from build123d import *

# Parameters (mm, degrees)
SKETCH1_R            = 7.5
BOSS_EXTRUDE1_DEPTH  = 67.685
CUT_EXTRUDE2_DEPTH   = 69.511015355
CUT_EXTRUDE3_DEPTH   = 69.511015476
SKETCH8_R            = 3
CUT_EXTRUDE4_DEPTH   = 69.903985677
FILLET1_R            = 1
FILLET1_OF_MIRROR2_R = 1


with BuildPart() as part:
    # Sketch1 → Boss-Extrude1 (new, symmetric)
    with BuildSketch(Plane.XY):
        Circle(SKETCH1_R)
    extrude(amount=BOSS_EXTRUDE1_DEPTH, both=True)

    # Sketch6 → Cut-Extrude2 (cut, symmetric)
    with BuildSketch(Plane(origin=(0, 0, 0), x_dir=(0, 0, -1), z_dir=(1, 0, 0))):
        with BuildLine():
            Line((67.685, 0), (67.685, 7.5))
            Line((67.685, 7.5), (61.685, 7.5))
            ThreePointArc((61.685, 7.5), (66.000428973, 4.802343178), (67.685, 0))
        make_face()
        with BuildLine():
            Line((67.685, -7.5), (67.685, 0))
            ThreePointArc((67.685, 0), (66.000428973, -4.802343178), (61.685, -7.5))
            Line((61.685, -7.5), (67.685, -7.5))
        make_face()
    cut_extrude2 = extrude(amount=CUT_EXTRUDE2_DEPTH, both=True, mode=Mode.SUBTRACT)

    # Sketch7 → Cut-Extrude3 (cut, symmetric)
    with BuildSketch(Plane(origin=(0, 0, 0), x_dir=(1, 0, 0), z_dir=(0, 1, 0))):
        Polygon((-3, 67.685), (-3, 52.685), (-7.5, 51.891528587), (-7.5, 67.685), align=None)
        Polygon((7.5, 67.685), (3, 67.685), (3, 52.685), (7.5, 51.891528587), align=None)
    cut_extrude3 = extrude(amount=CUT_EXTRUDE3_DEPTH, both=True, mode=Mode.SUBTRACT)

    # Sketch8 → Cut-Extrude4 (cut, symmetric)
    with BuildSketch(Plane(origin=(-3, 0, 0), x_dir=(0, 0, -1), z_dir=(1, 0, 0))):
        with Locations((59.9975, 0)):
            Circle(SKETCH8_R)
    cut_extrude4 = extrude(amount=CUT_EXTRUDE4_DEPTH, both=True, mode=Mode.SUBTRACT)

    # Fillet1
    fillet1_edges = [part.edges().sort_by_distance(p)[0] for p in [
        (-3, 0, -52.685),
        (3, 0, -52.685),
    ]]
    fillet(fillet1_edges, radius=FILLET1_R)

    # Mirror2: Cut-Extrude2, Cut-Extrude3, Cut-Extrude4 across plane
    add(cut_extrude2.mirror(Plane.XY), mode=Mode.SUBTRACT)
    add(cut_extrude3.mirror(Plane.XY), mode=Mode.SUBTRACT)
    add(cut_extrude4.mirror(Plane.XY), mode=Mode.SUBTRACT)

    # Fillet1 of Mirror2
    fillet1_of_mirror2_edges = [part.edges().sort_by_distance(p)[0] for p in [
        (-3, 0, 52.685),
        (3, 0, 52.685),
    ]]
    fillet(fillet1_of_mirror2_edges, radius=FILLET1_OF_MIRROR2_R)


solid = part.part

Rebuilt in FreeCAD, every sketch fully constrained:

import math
import FreeCAD as App
import Part
import Sketcher

V = App.Vector
Q = App.Units.Quantity


def edges_at(feature, points):
    """Names of the edges that pass closest to the given points."""
    edges = feature.Shape.Edges
    near = lambda p: min(range(len(edges)), key=lambda i: edges[i].distToShape(Part.Vertex(*p))[0])
    return sorted({f"Edge{near(p) + 1}" for p in points})

doc = App.newDocument("Part")
params = doc.addObject("Spreadsheet::Sheet", "Params")
for row, (alias, value) in enumerate([
    ("sketch1_diameter", "15 mm"),
    ("pad1_length", "135.37 mm"),
    ("sketch2_height", "6 mm"),
    ("sketch2_width", "7.5 mm"),
    ("pocket1_length", "139.022031 mm"),
    ("sketch3_height", "15 mm"),
    ("sketch3_width", "4.5 mm"),
    ("pocket2_length", "139.022031 mm"),
    ("sketch4_diameter", "6 mm"),
    ("pocket3_length", "139.807971 mm"),
    ("fillet_radius", "1 mm"),
    ("fillet2_radius", "1 mm"),
], start=1):
    params.set(f"A{row}", alias)
    params.set(f"B{row}", "=" + value)
    params.setAlias(f"B{row}", alias)

body = doc.addObject("PartDesign::Body", "Body")

# Sketch on XY plane
sketch1 = doc.addObject("Sketcher::SketchObject", "Sketch")
body.addObject(sketch1)
sketch1.AttachmentSupport = (doc.XY_Plane, [""])
sketch1.MapMode = "FlatFace"
sketch1.addGeometry(Part.Circle(V(0, 0, 0), V(0, 0, 1), 8), False)
sketch1.addConstraint([
    Sketcher.Constraint("Coincident", 0, 3, -1, 1),
    Sketcher.Constraint("Diameter", 0, 15.0),
])
sketch1.setExpression("Constraints[1]", "Params.sketch1_diameter")
pad1 = doc.addObject("PartDesign::Pad", "Pad")
body.addObject(pad1)
pad1.Profile = sketch1
pad1.setExpression("Length", "Params.pad1_length")
pad1.Midplane = True

# Sketch on YZ plane
sketch2 = doc.addObject("Sketcher::SketchObject", "Sketch001")
body.addObject(sketch2)
sketch2.AttachmentSupport = (doc.YZ_Plane, [""])
sketch2.MapMode = "FlatFace"
sketch2.addGeometry([
    Part.LineSegment(V(0, -68, 0), V(8, -68, 0)),  # 0
    Part.LineSegment(V(8, -68, 0), V(8, -62, 0)),  # 1
    Part.ArcOfCircle(Part.Circle(V(0, -60, 0), V(0, 0, 1), 8), math.radians(-90), math.radians(-13)),  # 2
    Part.LineSegment(V(-8, -68, 0), V(0, -68, 0)),  # 3
    Part.ArcOfCircle(Part.Circle(V(0, -60, 0), V(0, 0, 1), 8), math.radians(-167), math.radians(-90)),  # 4
    Part.LineSegment(V(-8, -62, 0), V(-8, -68, 0)),  # 5
], False)
sketch2.addConstraint([
    Sketcher.Constraint("Coincident", 0, 2, 1, 1),
    Sketcher.Constraint("Coincident", 1, 2, 2, 2),
    Sketcher.Constraint("Tangent", 2, 1, 0, 1),
    Sketcher.Constraint("Tangent", 3, 2, 4, 2),
    Sketcher.Constraint("Coincident", 4, 1, 5, 1),
    Sketcher.Constraint("Coincident", 5, 2, 3, 1),
    Sketcher.Constraint("Horizontal", 0),
    Sketcher.Constraint("Vertical", 1),
    Sketcher.Constraint("Horizontal", 3),
    Sketcher.Constraint("Vertical", 5),
    Sketcher.Constraint("Coincident", 4, 3, 2, 3),
    Sketcher.Constraint("Equal", 2, 4),
    Sketcher.Constraint("Symmetric", 1, 2, 4, 1, -2),
    Sketcher.Constraint("DistanceY", 1, 1, 1, 2, 6.0),
    Sketcher.Constraint("DistanceX", 0, 1, 0, 2, 7.5),
    Sketcher.Constraint("DistanceY", 0, 2, -1, 1, 67.685),
])
sketch2.setExpression("Constraints[13]", "Params.sketch2_height")
sketch2.setExpression("Constraints[14]", "Params.sketch2_width")
pocket1 = doc.addObject("PartDesign::Pocket", "Pocket")
body.addObject(pocket1)
pocket1.Profile = sketch2
pocket1.setExpression("Length", "Params.pocket1_length")
pocket1.Midplane = True

# Sketch on XZ plane
sketch3 = doc.addObject("Sketcher::SketchObject", "Sketch002")
body.addObject(sketch3)
sketch3.AttachmentSupport = (doc.XZ_Plane, [""])
sketch3.MapMode = "FlatFace"
sketch3.addGeometry([
    Part.LineSegment(V(-3, -52.7, 0), V(-3, -67.7, 0)),  # 0
    Part.LineSegment(V(-3, -67.7, 0), V(-7.5, -67.7, 0)),  # 1
    Part.LineSegment(V(-7.5, -67.7, 0), V(-7.5, -51.9, 0)),  # 2
    Part.LineSegment(V(-7.5, -51.9, 0), V(-3, -52.7, 0)),  # 3
    Part.LineSegment(V(7.5, -67.7, 0), V(3, -67.7, 0)),  # 4
    Part.LineSegment(V(3, -67.7, 0), V(3, -52.7, 0)),  # 5
    Part.LineSegment(V(3, -52.7, 0), V(7.5, -51.9, 0)),  # 6
    Part.LineSegment(V(7.5, -51.9, 0), V(7.5, -67.7, 0)),  # 7
], False)
sketch3.addConstraint([
    Sketcher.Constraint("Coincident", 0, 2, 1, 1),
    Sketcher.Constraint("Coincident", 1, 2, 2, 1),
    Sketcher.Constraint("Coincident", 2, 2, 3, 1),
    Sketcher.Constraint("Coincident", 3, 2, 0, 1),
    Sketcher.Constraint("Coincident", 4, 2, 5, 1),
    Sketcher.Constraint("Coincident", 5, 2, 6, 1),
    Sketcher.Constraint("Coincident", 6, 2, 7, 1),
    Sketcher.Constraint("Coincident", 7, 2, 4, 1),
    Sketcher.Constraint("Vertical", 0),
    Sketcher.Constraint("Horizontal", 1),
    Sketcher.Constraint("Vertical", 2),
    Sketcher.Constraint("Horizontal", 4),
    Sketcher.Constraint("Vertical", 5),
    Sketcher.Constraint("Vertical", 7),
    Sketcher.Constraint("Symmetric", 0, 2, 4, 2, -2),
    Sketcher.Constraint("Symmetric", 2, 2, 6, 2, -2),
    Sketcher.Constraint("Horizontal", 3, 2, 5, 2),
    Sketcher.Constraint("DistanceY", 0, 2, 0, 1, 15.0),
    Sketcher.Constraint("Angle", 3, Q("-10 deg")),
    Sketcher.Constraint("DistanceX", 1, 2, 1, 1, 4.5),
    Sketcher.Constraint("DistanceX", 0, 2, -1, 1, 3.0),
    Sketcher.Constraint("DistanceY", 0, 2, -1, 1, 67.685),
])
sketch3.setExpression("Constraints[17]", "Params.sketch3_height")
sketch3.setExpression("Constraints[19]", "Params.sketch3_width")
pocket2 = doc.addObject("PartDesign::Pocket", "Pocket001")
body.addObject(pocket2)
pocket2.Profile = sketch3
pocket2.setExpression("Length", "Params.pocket2_length")
pocket2.Midplane = True

# Sketch on YZ plane
sketch4 = doc.addObject("Sketcher::SketchObject", "Sketch003")
body.addObject(sketch4)
sketch4.AttachmentSupport = (doc.YZ_Plane, [""])
sketch4.MapMode = "FlatFace"
sketch4.AttachmentOffset = App.Placement(V(0, 0, -3), App.Rotation())
sketch4.addGeometry(Part.Circle(V(0, -60, 0), V(0, 0, 1), 3), False)
sketch4.addConstraint([
    Sketcher.Constraint("PointOnObject", 0, 3, -2),
    Sketcher.Constraint("Diameter", 0, 6.0),
    Sketcher.Constraint("DistanceY", 0, 3, -1, 1, 59.9975),
])
sketch4.setExpression("Constraints[1]", "Params.sketch4_diameter")
pocket3 = doc.addObject("PartDesign::Pocket", "Pocket002")
body.addObject(pocket3)
pocket3.Profile = sketch4
pocket3.setExpression("Length", "Params.pocket3_length")
pocket3.Midplane = True
doc.recompute()

fillet = doc.addObject("PartDesign::Fillet", "Fillet")
body.addObject(fillet)
fillet.Base = (pocket3, edges_at(pocket3, [(-3, 0, -52.685), (3, 0, -52.685)]))
fillet.setExpression("Radius", "Params.fillet_radius")
doc.recompute()

mirrored = doc.addObject("PartDesign::Mirrored", "Mirrored")
body.addObject(mirrored)
mirrored.Originals = [pocket1, pocket2, pocket3]
mirrored.MirrorPlane = (doc.XY_Plane, [""])
body.Tip = mirrored
doc.recompute()

fillet2 = doc.addObject("PartDesign::Fillet", "Fillet001")
body.addObject(fillet2)
fillet2.Base = (mirrored, edges_at(mirrored, [(-3, 0, 52.685), (3, 0, 52.685)]))
fillet2.setExpression("Radius", "Params.fillet2_radius")

doc.recompute()
